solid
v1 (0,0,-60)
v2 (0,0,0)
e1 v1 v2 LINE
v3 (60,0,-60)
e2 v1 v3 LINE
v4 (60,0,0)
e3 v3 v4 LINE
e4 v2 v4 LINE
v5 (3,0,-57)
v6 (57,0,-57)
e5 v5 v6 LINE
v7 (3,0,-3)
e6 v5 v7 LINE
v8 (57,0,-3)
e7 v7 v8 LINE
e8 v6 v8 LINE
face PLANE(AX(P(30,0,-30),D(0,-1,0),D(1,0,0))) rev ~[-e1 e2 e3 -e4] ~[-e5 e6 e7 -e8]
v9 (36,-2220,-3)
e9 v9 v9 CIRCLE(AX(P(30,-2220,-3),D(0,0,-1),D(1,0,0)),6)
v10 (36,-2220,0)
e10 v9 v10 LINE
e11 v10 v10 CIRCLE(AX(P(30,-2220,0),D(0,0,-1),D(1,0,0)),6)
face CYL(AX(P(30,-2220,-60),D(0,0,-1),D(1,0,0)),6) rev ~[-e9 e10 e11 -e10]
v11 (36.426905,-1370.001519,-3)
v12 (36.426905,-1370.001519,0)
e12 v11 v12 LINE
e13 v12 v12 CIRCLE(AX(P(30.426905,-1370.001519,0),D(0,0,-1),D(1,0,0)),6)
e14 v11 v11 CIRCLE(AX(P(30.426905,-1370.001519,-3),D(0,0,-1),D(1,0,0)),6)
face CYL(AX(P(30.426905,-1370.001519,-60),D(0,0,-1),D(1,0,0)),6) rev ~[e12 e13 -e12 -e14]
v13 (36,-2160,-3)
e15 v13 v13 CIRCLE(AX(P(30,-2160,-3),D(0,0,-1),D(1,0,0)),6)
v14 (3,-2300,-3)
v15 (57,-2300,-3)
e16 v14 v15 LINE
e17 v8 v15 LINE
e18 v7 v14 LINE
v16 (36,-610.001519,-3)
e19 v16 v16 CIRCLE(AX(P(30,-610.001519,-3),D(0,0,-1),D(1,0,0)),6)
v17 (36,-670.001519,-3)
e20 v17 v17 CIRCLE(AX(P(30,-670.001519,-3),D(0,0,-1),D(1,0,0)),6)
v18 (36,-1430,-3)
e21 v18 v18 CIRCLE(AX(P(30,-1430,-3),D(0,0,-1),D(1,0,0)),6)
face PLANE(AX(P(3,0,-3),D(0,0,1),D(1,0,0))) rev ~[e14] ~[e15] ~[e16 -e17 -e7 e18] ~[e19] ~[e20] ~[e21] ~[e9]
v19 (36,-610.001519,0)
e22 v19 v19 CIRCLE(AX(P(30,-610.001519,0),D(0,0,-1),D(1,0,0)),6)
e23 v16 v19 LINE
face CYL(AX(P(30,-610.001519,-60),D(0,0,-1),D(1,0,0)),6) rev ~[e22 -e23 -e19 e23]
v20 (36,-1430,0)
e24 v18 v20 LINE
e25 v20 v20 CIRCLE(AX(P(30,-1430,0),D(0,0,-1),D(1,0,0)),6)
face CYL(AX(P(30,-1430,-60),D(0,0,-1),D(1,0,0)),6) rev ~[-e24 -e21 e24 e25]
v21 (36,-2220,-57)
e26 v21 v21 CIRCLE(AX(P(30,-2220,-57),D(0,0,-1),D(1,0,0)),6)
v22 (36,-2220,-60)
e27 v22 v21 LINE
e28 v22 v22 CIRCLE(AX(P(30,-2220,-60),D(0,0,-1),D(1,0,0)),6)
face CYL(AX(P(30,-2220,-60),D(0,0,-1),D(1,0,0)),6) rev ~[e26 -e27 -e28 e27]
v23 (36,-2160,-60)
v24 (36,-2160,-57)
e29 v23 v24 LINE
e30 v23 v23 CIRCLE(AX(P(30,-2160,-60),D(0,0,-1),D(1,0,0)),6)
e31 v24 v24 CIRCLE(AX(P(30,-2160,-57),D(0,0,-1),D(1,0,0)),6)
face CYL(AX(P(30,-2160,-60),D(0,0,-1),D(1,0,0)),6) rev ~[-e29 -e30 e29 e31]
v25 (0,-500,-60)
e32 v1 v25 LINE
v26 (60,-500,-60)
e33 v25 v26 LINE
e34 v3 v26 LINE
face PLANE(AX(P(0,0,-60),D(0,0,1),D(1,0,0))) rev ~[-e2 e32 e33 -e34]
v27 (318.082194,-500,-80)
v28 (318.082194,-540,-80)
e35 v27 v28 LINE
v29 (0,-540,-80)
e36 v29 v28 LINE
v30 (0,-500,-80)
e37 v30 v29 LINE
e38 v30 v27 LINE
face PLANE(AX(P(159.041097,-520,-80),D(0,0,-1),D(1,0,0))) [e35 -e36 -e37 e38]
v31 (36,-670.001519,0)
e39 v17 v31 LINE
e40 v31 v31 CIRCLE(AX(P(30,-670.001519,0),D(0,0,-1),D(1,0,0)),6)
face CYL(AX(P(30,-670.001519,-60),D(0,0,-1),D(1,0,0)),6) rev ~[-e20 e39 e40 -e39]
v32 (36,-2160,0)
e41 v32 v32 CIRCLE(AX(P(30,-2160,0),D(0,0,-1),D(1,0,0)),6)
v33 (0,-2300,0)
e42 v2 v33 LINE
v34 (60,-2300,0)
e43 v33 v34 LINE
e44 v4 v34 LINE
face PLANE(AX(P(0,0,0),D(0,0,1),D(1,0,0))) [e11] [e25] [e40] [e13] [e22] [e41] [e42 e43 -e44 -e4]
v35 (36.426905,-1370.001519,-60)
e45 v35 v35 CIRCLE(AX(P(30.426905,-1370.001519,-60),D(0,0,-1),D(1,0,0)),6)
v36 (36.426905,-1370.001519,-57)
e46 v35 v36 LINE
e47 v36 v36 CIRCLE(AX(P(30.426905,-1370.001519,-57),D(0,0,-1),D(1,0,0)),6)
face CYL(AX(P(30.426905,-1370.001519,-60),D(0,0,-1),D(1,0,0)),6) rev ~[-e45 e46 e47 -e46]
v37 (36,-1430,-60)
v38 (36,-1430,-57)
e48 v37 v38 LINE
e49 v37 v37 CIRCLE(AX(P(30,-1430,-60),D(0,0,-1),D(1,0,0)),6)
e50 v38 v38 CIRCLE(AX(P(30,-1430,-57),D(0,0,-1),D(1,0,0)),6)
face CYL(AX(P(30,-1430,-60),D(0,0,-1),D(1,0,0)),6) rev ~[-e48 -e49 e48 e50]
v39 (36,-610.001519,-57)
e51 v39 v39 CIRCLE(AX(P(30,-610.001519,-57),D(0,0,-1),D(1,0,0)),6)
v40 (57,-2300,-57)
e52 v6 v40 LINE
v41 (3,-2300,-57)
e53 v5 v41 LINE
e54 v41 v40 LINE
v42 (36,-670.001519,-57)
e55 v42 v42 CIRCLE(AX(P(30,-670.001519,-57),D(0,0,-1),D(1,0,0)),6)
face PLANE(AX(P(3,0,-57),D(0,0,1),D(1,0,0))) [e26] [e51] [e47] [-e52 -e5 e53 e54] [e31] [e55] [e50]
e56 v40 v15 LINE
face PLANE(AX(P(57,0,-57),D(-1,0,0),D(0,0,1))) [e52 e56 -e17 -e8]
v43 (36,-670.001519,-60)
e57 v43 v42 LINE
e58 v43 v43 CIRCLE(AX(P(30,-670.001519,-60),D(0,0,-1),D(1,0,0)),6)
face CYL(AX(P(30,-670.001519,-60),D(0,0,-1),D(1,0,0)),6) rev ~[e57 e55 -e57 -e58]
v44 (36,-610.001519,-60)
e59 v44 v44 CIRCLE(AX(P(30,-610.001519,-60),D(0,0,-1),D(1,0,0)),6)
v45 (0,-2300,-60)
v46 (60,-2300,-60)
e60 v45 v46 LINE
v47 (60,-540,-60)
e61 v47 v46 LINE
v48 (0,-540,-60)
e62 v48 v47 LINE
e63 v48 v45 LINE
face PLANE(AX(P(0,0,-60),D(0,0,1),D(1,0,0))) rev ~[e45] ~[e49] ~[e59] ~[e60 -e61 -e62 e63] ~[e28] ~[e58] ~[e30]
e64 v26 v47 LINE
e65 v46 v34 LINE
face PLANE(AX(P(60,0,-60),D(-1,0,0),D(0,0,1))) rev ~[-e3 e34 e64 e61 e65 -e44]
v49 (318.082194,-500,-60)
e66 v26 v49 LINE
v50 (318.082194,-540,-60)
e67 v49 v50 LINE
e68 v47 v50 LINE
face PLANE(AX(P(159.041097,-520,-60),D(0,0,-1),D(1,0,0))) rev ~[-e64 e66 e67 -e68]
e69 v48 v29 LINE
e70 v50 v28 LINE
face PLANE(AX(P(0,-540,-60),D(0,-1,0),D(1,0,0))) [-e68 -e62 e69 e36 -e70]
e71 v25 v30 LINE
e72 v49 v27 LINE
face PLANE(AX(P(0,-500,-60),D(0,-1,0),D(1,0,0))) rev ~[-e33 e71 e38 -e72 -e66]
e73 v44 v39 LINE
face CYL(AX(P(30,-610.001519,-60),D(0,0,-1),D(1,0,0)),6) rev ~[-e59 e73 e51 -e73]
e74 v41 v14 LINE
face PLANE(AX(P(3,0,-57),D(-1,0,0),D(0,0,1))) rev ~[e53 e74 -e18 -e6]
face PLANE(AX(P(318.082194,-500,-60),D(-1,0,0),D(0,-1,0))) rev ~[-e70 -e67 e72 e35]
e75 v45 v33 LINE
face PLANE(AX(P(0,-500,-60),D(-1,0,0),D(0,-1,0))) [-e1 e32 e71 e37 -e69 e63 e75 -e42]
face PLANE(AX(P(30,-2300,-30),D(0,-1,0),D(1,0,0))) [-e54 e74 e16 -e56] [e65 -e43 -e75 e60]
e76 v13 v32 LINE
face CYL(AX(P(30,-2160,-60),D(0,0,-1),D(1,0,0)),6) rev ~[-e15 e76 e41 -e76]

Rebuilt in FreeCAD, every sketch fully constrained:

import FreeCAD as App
import Part
import Sketcher
Q = App.Units.Quantity


def add_polygon(sketch, points):
    """Adds a closed chain of lines whose ends are joined by coincident constraints."""
    first, n = sketch.GeometryCount, len(points)
    for a, b in zip(points, points[1:] + points[:1]):
        sketch.addGeometry(Part.LineSegment(App.Vector(*a, 0), App.Vector(*b, 0)), False)
    for i in range(n):
        sketch.addConstraint(Sketcher.Constraint("Coincident", first + i, 2, first + (i + 1) % n, 1))

doc = App.newDocument("Part")
body = doc.addObject("PartDesign::Body", "Body")

sketch1 = body.newObject("Sketcher::SketchObject", "Sketch")
sketch1.AttachmentSupport = (doc.getObject("XZ_Plane"), [""])
sketch1.MapMode = "FlatFace"
add_polygon(sketch1, [(0, 0), (0, -60), (60, -60), (60, 0)])
add_polygon(sketch1, [(57, -57), (3, -57), (3, -3), (57, -3)])
sketch1.addConstraint(Sketcher.Constraint("Vertical", 0))
sketch1.addConstraint(Sketcher.Constraint("Horizontal", 1))
sketch1.addConstraint(Sketcher.Constraint("Vertical", 2))
sketch1.addConstraint(Sketcher.Constraint("Horizontal", 3))
sketch1.addConstraint(Sketcher.Constraint("Horizontal", 4))
sketch1.addConstraint(Sketcher.Constraint("Vertical", 5))
sketch1.addConstraint(Sketcher.Constraint("Horizontal", 6))
sketch1.addConstraint(Sketcher.Constraint("Vertical", 7))
sketch1.addConstraint(Sketcher.Constraint("Coincident", 3, 2, -1, 1))
sketch1.addConstraint(Sketcher.Constraint("Equal", 3, 0))
sketch1.addConstraint(Sketcher.Constraint("Equal", 6, 5))
sketch1.addConstraint(Sketcher.Constraint("DistanceX", 1, 1, 1, 2, Q("60 mm")))
sketch1.addConstraint(Sketcher.Constraint("DistanceX", 4, 2, 4, 1, Q("54 mm")))
sketch1.addConstraint(Sketcher.Constraint("DistanceX", -1, 1, 4, 2, Q("3 mm")))
sketch1.addConstraint(Sketcher.Constraint("DistanceY", 4, 2, -1, 1, Q("57 mm")))
pad1 = body.newObject("PartDesign::Pad", "Pad")
pad1.Profile = sketch1
pad1.Length = 2300

sketch2 = body.newObject("Sketcher::SketchObject", "Sketch001")
sketch2.AttachmentSupport = (doc.getObject("XY_Plane"), [""])
sketch2.MapMode = "FlatFace"
sketch2.AttachmentOffset = App.Placement(App.Vector(0, 0, -60), App.Rotation())
sketch2.addGeometry(Part.Circle(App.Vector(30, -610, 0), App.Vector(0, 0, 1), 6), False)
sketch2.addGeometry(Part.Circle(App.Vector(30, -670, 0), App.Vector(0, 0, 1), 6), False)
sketch2.addGeometry(Part.Circle(App.Vector(30, -1430, 0), App.Vector(0, 0, 1), 6), False)
sketch2.addGeometry(Part.Circle(App.Vector(30, -1370, 0), App.Vector(0, 0, 1), 6), False)
sketch2.addGeometry(Part.Circle(App.Vector(30, -2220, 0), App.Vector(0, 0, 1), 6), False)
sketch2.addGeometry(Part.Circle(App.Vector(30, -2160, 0), App.Vector(0, 0, 1), 6), False)
sketch2.addConstraint(Sketcher.Constraint("Equal", 0, 1))
sketch2.addConstraint(Sketcher.Constraint("Equal", 1, 2))
sketch2.addConstraint(Sketcher.Constraint("Equal", 2, 3))
sketch2.addConstraint(Sketcher.Constraint("Equal", 3, 4))
sketch2.addConstraint(Sketcher.Constraint("Equal", 4, 5))
sketch2.addConstraint(Sketcher.Constraint("Vertical", 0, 3, 1, 3))
sketch2.addConstraint(Sketcher.Constraint("Vertical", 1, 3, 2, 3))
sketch2.addConstraint(Sketcher.Constraint("Vertical", 2, 3, 4, 3))
sketch2.addConstraint(Sketcher.Constraint("Vertical", 4, 3, 5, 3))
sketch2.addConstraint(Sketcher.Constraint("Diameter", 0, Q("12 mm")))
sketch2.addConstraint(Sketcher.Constraint("DistanceX", -1, 1, 0, 3, Q("30 mm")))
sketch2.addConstraint(Sketcher.Constraint("DistanceY", 2, 3, -1, 1, Q("1430 mm")))
sketch2.addConstraint(Sketcher.Constraint("DistanceY", 4, 3, -1, 1, Q("2220 mm")))
sketch2.addConstraint(Sketcher.Constraint("DistanceY", 5, 3, -1, 1, Q("2160 mm")))
sketch2.addConstraint(Sketcher.Constraint("DistanceY", 1, 3, 0, 3, Q("60 mm")))
sketch2.addConstraint(Sketcher.Constraint("DistanceY", 3, 3, 1, 3, Q("700 mm")))
sketch2.addConstraint(Sketcher.Constraint("DistanceY", 0, 3, -1, 1, Q("610.001519 mm")))
sketch2.addConstraint(Sketcher.Constraint("DistanceX", -1, 1, 3, 3, Q("30.426905 mm")))
pocket1 = body.newObject("PartDesign::Pocket", "Pocket")
pocket1.Profile = sketch2
pocket1.Length = 100
pocket1.Reversed = True

sketch3 = body.newObject("Sketcher::SketchObject", "Sketch002")
sketch3.AttachmentSupport = (doc.getObject("XY_Plane"), [""])
sketch3.MapMode = "FlatFace"
sketch3.AttachmentOffset = App.Placement(App.Vector(0, 0, -60), App.Rotation())
add_polygon(sketch3, [(0, -540), (0, -500), (318, -500), (318, -540)])
sketch3.addConstraint(Sketcher.Constraint("Vertical", 0))
sketch3.addConstraint(Sketcher.Constraint("Horizontal", 1))
sketch3.addConstraint(Sketcher.Constraint("Vertical", 2))
sketch3.addConstraint(Sketcher.Constraint("Horizontal", 3))
sketch3.addConstraint(Sketcher.Constraint("PointOnObject", 0, 2, -2))
sketch3.addConstraint(Sketcher.Constraint("DistanceY", 0, 1, 0, 2, Q("40 mm")))
sketch3.addConstraint(Sketcher.Constraint("DistanceY", 0, 2, -1, 1, Q("500 mm")))
sketch3.addConstraint(Sketcher.Constraint("DistanceX", 1, 1, 1, 2, Q("318.082194 mm")))
pad2 = body.newObject("PartDesign::Pad", "Pad001")
pad2.Profile = sketch3
pad2.Length = 20
pad2.Reversed = True

doc.recompute()
